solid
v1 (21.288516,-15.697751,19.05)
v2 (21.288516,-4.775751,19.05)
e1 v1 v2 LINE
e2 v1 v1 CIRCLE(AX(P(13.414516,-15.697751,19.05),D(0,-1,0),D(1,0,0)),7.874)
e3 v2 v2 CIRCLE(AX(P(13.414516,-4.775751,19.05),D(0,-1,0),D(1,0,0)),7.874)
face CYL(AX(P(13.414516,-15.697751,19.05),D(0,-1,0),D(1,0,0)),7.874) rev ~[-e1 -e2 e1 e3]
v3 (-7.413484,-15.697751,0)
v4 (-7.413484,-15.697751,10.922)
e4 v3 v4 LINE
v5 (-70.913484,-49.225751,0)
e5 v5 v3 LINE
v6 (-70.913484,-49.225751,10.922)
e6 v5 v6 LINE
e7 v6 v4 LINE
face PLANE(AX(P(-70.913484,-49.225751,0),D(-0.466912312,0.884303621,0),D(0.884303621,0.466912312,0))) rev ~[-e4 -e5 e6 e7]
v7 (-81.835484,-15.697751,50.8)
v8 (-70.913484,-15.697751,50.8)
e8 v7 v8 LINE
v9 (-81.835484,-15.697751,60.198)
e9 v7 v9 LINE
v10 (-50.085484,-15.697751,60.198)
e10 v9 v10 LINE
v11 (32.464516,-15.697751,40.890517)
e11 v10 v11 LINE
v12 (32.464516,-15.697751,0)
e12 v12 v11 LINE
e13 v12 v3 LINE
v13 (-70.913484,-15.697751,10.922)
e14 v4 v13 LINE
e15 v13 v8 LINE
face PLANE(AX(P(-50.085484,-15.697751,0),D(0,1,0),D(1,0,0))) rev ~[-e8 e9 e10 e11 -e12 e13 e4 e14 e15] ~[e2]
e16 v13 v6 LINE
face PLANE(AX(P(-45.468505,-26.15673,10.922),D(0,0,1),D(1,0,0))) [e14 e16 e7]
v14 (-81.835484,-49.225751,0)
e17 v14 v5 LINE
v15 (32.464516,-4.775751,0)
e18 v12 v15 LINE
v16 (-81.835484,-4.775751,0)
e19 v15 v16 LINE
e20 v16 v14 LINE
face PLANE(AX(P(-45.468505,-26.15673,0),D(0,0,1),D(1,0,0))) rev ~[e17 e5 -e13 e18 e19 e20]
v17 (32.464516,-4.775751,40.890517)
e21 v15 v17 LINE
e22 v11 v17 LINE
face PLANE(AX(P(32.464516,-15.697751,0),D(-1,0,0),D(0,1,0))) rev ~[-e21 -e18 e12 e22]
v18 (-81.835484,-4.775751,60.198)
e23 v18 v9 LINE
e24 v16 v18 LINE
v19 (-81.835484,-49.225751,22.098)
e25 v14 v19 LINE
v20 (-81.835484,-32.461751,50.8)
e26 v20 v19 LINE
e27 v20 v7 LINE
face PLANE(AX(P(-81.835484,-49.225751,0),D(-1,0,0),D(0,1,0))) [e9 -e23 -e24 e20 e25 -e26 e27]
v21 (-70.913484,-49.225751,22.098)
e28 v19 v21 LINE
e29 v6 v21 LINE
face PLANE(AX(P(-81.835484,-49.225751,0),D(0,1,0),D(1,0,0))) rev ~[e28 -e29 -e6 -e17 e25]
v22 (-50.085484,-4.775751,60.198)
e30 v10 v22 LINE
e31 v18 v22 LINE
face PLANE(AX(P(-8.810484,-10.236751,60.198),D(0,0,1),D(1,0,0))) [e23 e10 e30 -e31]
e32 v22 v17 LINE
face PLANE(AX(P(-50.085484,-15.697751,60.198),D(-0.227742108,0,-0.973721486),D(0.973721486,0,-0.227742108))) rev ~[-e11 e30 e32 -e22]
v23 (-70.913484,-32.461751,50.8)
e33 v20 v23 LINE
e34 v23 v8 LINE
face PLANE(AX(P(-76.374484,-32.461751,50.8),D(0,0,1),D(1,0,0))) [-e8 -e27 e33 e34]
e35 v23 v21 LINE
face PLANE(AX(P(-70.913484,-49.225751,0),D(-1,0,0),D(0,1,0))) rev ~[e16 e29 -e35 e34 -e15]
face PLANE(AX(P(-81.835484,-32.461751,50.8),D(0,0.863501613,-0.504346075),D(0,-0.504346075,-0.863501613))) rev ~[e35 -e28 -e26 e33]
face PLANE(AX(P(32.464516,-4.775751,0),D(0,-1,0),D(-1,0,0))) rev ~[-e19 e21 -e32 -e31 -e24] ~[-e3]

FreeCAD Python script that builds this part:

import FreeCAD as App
import Part
import Sketcher
Q = App.Units.Quantity


def add_polygon(sketch, points):
    """Adds a closed chain of lines whose ends are joined by coincident constraints."""
    first, n = sketch.GeometryCount, len(points)
    for a, b in zip(points, points[1:] + points[:1]):
        sketch.addGeometry(Part.LineSegment(App.Vector(*a, 0), App.Vector(*b, 0)), False)
    for i in range(n):
        sketch.addConstraint(Sketcher.Constraint("Coincident", first + i, 2, first + (i + 1) % n, 1))

doc = App.newDocument("Part")
params = doc.addObject("Spreadsheet::Sheet", "Params")
for row, (alias, value) in enumerate([
    ("sketch1_width", "1.25 in"),
    ("sketch1_height", "0.43 in"),
    ("pad1_length", "2.37 in"),
    ("sketch2_width", "3.25 in"),
    ("sketch2_height", "0.43 in"),
    ("pad2_length", "2.37 in"),
    ("sketch3_width", "0.43 in"),
    ("sketch3_height", "1.32 in"),
    ("pad3_length", "2 in"),
    ("sketch4_width", "2.5 in"),
    ("sketch4_height", "1.32 in"),
    ("pad4_length", "0.43 in"),
    ("sketch5_diameter", "0.62 in"),
    ("sketch6_width", "3.25 in"),
    ("pocket2_length", "1 in"),
    ("sketch7_width", "0.66 in"),
    ("sketch7_height", "1.13 in"),
    ("pocket3_length", "1 in"),
], start=1):
    params.set(f"A{row}", alias)
    params.set(f"B{row}", "=" + value)
    params.setAlias(f"B{row}", alias)

body = doc.addObject("PartDesign::Body", "Body")

# Sketch on XY plane
sketch1 = body.newObject("Sketcher::SketchObject", "Sketch")
sketch1.AttachmentSupport = (doc.getObject("XY_Plane"), [""])
sketch1.MapMode = "FlatFace"
add_polygon(sketch1, [(-82, -5), (-82, -16), (-50, -16), (-50, -5)])  # lines 0-3
sketch1.addConstraint([
    Sketcher.Constraint("Vertical", 0),
    Sketcher.Constraint("Horizontal", 1),
    Sketcher.Constraint("Vertical", 2),
    Sketcher.Constraint("Horizontal", 3),
    Sketcher.Constraint("DistanceX", 1, 1, 1, 2, Q("1.25 in")),
    Sketcher.Constraint("DistanceY", 0, 2, 0, 1, Q("0.43 in")),
    Sketcher.Constraint("DistanceY", 0, 2, -1, 1, 15.697751),
    Sketcher.Constraint("DistanceX", 0, 2, -1, 1, 81.835484),
])
sketch1.setExpression("Constraints[8]", "Params.sketch1_width")
sketch1.setExpression("Constraints[9]", "Params.sketch1_height")
pad1 = body.newObject("PartDesign::Pad", "Pad")
pad1.Profile = sketch1
pad1.setExpression("Length", "Params.pad1_length")

# Sketch on XY plane
sketch2 = body.newObject("Sketcher::SketchObject", "Sketch001")
sketch2.AttachmentSupport = (doc.getObject("XY_Plane"), [""])
sketch2.MapMode = "FlatFace"
add_polygon(sketch2, [(32, -5), (-50, -5), (-50, -16), (32, -16)])  # lines 0-3
sketch2.addConstraint([
    Sketcher.Constraint("Horizontal", 0),
    Sketcher.Constraint("Vertical", 1),
    Sketcher.Constraint("Horizontal", 2),
    Sketcher.Constraint("Vertical", 3),
    Sketcher.Constraint("DistanceX", 0, 2, 0, 1, Q("3.25 in")),
    Sketcher.Constraint("DistanceY", 1, 2, 1, 1, Q("0.43 in")),
    Sketcher.Constraint("DistanceY", 0, 2, -1, 1, 4.775751),
    Sketcher.Constraint("DistanceX", 0, 2, -1, 1, 50.085484),
])
sketch2.setExpression("Constraints[8]", "Params.sketch2_width")
sketch2.setExpression("Constraints[9]", "Params.sketch2_height")
pad2 = body.newObject("PartDesign::Pad", "Pad001")
pad2.Profile = sketch2
pad2.setExpression("Length", "Params.pad2_length")

# Sketch on XY plane
sketch3 = body.newObject("Sketcher::SketchObject", "Sketch002")
sketch3.AttachmentSupport = (doc.getObject("XY_Plane"), [""])
sketch3.MapMode = "FlatFace"
add_polygon(sketch3, [(-82, -16), (-82, -49), (-71, -49), (-71, -16)])  # lines 0-3
sketch3.addConstraint([
    Sketcher.Constraint("Vertical", 0),
    Sketcher.Constraint("Horizontal", 1),
    Sketcher.Constraint("Vertical", 2),
    Sketcher.Constraint("Horizontal", 3),
    Sketcher.Constraint("DistanceX", 1, 1, 1, 2, Q("0.43 in")),
    Sketcher.Constraint("DistanceY", 0, 2, 0, 1, Q("1.32 in")),
    Sketcher.Constraint("DistanceY", 0, 2, -1, 1, 49.225751),
    Sketcher.Constraint("DistanceX", 0, 2, -1, 1, 81.835484),
])
sketch3.setExpression("Constraints[8]", "Params.sketch3_width")
sketch3.setExpression("Constraints[9]", "Params.sketch3_height")
pad3 = body.newObject("PartDesign::Pad", "Pad002")
pad3.Profile = sketch3
pad3.setExpression("Length", "Params.pad3_length")

# Sketch on XY plane
sketch4 = body.newObject("Sketcher::SketchObject", "Sketch003")
sketch4.AttachmentSupport = (doc.getObject("XY_Plane"), [""])
sketch4.MapMode = "FlatFace"
add_polygon(sketch4, [(-71, -16), (-71, -49), (-7, -16)])  # lines 0-2
sketch4.addConstraint([
    Sketcher.Constraint("Vertical", 0),
    Sketcher.Constraint("Horizontal", 2),
    Sketcher.Constraint("DistanceX", 2, 2, 2, 1, Q("2.5 in")),
    Sketcher.Constraint("DistanceY", 0, 2, 0, 1, Q("1.32 in")),
    Sketcher.Constraint("DistanceY", 0, 2, -1, 1, 49.225751),
    Sketcher.Constraint("DistanceX", 0, 2, -1, 1, 70.913484),
])
sketch4.setExpression("Constraints[5]", "Params.sketch4_width")
sketch4.setExpression("Constraints[6]", "Params.sketch4_height")
pad4 = body.newObject("PartDesign::Pad", "Pad003")
pad4.Profile = sketch4
pad4.setExpression("Length", "Params.pad4_length")

# Sketch on XZ plane
sketch5 = body.newObject("Sketcher::SketchObject", "Sketch004")
sketch5.AttachmentSupport = (doc.getObject("XZ_Plane"), [""])
sketch5.MapMode = "FlatFace"
sketch5.AttachmentOffset = App.Placement(App.Vector(0, 0, 15.697751), App.Rotation())
sketch5.addGeometry(Part.Circle(App.Vector(13, 19, 0), App.Vector(0, 0, 1), 8), False)
sketch5.addConstraint([
    Sketcher.Constraint("Diameter", 0, Q("0.62 in")),
    Sketcher.Constraint("DistanceY", -1, 1, 0, 3, Q("0.75 in")),
    Sketcher.Constraint("DistanceX", -1, 1, 0, 3, 13.414516),
])
sketch5.setExpression("Constraints[0]", "Params.sketch5_diameter")
pocket1 = body.newObject("PartDesign::Pocket", "Pocket")
pocket1.Profile = sketch5
pocket1.Type = "ThroughAll"

# Sketch on XZ plane
sketch6 = body.newObject("Sketcher::SketchObject", "Sketch005")
sketch6.AttachmentSupport = (doc.getObject("XZ_Plane"), [""])
sketch6.MapMode = "FlatFace"
sketch6.AttachmentOffset = App.Placement(App.Vector(0, 0, 15.697751), App.Rotation())
add_polygon(sketch6, [(32, 60), (-50, 60), (32, 41)])  # lines 0-2
sketch6.addConstraint([
    Sketcher.Constraint("Horizontal", 0),
    Sketcher.Constraint("Vertical", 2),
    Sketcher.Constraint("DistanceX", 0, 2, 0, 1, Q("3.25 in")),
    Sketcher.Constraint("DistanceY", -1, 1, 0, 2, Q("2.37 in")),
    Sketcher.Constraint("DistanceY", 2, 1, 2, 2, 19.307483),
    Sketcher.Constraint("DistanceX", 0, 2, -1, 1, 50.085484),
])
sketch6.setExpression("Constraints[5]", "Params.sketch6_width")
pocket2 = body.newObject("PartDesign::Pocket", "Pocket001")
pocket2.Profile = sketch6
pocket2.setExpression("Length", "Params.pocket2_length")

# Sketch on YZ plane
sketch7 = body.newObject("Sketcher::SketchObject", "Sketch006")
sketch7.AttachmentSupport = (doc.getObject("YZ_Plane"), [""])
sketch7.MapMode = "FlatFace"
sketch7.AttachmentOffset = App.Placement(App.Vector(0, 0, -81.835484), App.Rotation())
add_polygon(sketch7, [(-49, 51), (-32, 51), (-49, 22)])  # lines 0-2
sketch7.addConstraint([
    Sketcher.Constraint("Horizontal", 0),
    Sketcher.Constraint("Vertical", 2),
    Sketcher.Constraint("DistanceY", -1, 1, 0, 2, Q("2 in")),
    Sketcher.Constraint("DistanceX", 0, 1, 0, 2, Q("0.66 in")),
    Sketcher.Constraint("DistanceY", 2, 1, 2, 2, Q("1.13 in")),
    Sketcher.Constraint("DistanceX", 0, 2, -1, 1, 32.461751),
])
sketch7.setExpression("Constraints[6]", "Params.sketch7_width")
sketch7.setExpression("Constraints[7]", "Params.sketch7_height")
pocket3 = body.newObject("PartDesign::Pocket", "Pocket002")
pocket3.Profile = sketch7
pocket3.setExpression("Length", "Params.pocket3_length")
pocket3.Reversed = True

doc.recompute()
